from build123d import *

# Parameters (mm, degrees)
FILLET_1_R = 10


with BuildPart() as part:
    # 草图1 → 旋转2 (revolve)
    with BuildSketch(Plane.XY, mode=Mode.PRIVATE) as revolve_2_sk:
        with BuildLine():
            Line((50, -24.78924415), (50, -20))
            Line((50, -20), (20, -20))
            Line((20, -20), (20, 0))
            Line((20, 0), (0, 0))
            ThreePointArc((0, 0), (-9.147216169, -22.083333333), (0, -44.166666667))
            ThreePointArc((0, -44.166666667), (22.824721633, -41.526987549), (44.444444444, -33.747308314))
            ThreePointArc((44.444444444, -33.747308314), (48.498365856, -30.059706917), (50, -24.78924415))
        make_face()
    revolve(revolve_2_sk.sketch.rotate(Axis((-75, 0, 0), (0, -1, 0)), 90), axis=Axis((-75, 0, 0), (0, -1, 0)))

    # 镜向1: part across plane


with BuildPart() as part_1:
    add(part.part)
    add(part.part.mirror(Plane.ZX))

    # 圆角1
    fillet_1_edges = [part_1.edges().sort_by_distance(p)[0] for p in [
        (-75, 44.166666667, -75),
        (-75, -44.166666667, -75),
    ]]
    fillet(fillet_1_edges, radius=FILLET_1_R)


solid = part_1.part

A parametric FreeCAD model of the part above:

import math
import FreeCAD as App
import Part
import Sketcher

V = App.Vector
Q = App.Units.Quantity


def edges_at(feature, points):
    """Names of the edges that pass closest to the given points."""
    edges = feature.Shape.Edges
    near = lambda p: min(range(len(edges)), key=lambda i: edges[i].distToShape(Part.Vertex(*p))[0])
    return sorted({f"Edge{near(p) + 1}" for p in points})

doc = App.newDocument("Part")
body = doc.addObject("PartDesign::Body", "Body")

sketch1 = doc.addObject("Sketcher::SketchObject", "Sketch")
body.addObject(sketch1)
sketch1.AttachmentSupport = (doc.XY_Plane, [""])
sketch1.MapMode = "FlatFace"
sketch1.addGeometry([
    Part.LineSegment(V(50, -24.8, 0), V(50, -20, 0)),
    Part.LineSegment(V(50, -20, 0), V(20, -20, 0)),
    Part.LineSegment(V(20, -20, 0), V(20, 0, 0)),
    Part.LineSegment(V(20, 0, 0), V(0, 0, 0)),
    Part.ArcOfCircle(Part.Circle(V(22.1, -22.1, 0), V(0, 0, 1), 31.2), math.radians(135), math.radians(225)),
    Part.ArcOfCircle(Part.Circle(V(0, 55.8, 0), V(0, 0, 1), 100), math.radians(-90), math.radians(-64)),
    Part.ArcOfCircle(Part.Circle(V(40, -24.8, 0), V(0, 0, 1), 10), math.radians(-64), math.radians(0)),
], False)
sketch1.addGeometry(Part.LineSegment(V(-75, 55.8, 0), V(-75, -44.2, 0)), True)
sketch1.addConstraint([
    Sketcher.Constraint("Coincident", 0, 2, 1, 1),
    Sketcher.Constraint("Coincident", 1, 2, 2, 1),
    Sketcher.Constraint("Coincident", 2, 2, 3, 1),
    Sketcher.Constraint("Coincident", 3, 2, 4, 1),
    Sketcher.Constraint("Coincident", 4, 2, 5, 1),
    Sketcher.Constraint("Tangent", 5, 2, 6, 1),
    Sketcher.Constraint("Tangent", 6, 2, 0, 1),
    Sketcher.Constraint("Vertical", 0),
    Sketcher.Constraint("Horizontal", 1),
    Sketcher.Constraint("Vertical", 2),
    Sketcher.Constraint("Horizontal", 3),
    Sketcher.Constraint("Vertical", 7),
    Sketcher.Constraint("Coincident", 3, 2, -1, 1),
    Sketcher.Constraint("PointOnObject", 5, 3, -2),
    Sketcher.Constraint("PointOnObject", 4, 2, -2),
    Sketcher.Constraint("Horizontal", 5, 3, 7, 1),
    Sketcher.Constraint("Horizontal", 4, 2, 7, 2),
    Sketcher.Constraint("Equal", 3, 2),
    Sketcher.Constraint("Radius", 5, Q("100 mm")),
    Sketcher.Constraint("Radius", 6, Q("10 mm")),
    Sketcher.Constraint("DistanceX", 1, 2, 1, 1, Q("30 mm")),
    Sketcher.Constraint("DistanceX", 3, 2, 3, 1, Q("20 mm")),
    Sketcher.Constraint("DistanceX", 7, 1, -1, 1, Q("75 mm")),
    Sketcher.Constraint("Radius", 4, Q("31.23055 mm")),
    Sketcher.Constraint("DistanceY", 0, 1, 0, 2, Q("4.789244 mm")),
])
revolution = doc.addObject("PartDesign::Revolution", "Revolution")
body.addObject(revolution)
revolution.Profile = sketch1
revolution.ReferenceAxis = (sketch1, ["Axis0"])
revolution.Angle = 360
body2 = doc.addObject("PartDesign::Body", "Body001")
doc.recompute()

body2.BaseFeature = body
doc.recompute()

mirroring = doc.addObject("Part::Mirroring", "Mirroring")
mirroring.Source = body
mirroring.Base = V(0, 0, 0)
mirroring.Normal = V(0, 1, 0)
body3 = doc.addObject("PartDesign::Body", "Body002")
body3.BaseFeature = mirroring
boolean = doc.addObject("PartDesign::Boolean", "Boolean")
body2.addObject(boolean)
boolean.Type = "Fuse"
boolean.addObjects([body3])
doc.recompute()

fillet = doc.addObject("PartDesign::Fillet", "Fillet")
body2.addObject(fillet)
fillet.Base = (boolean, edges_at(boolean, [(-75, 44.167, -75), (-75, -44.167, -75)]))
fillet.Radius = 10
mirroring.Visibility = False

doc.recompute()
